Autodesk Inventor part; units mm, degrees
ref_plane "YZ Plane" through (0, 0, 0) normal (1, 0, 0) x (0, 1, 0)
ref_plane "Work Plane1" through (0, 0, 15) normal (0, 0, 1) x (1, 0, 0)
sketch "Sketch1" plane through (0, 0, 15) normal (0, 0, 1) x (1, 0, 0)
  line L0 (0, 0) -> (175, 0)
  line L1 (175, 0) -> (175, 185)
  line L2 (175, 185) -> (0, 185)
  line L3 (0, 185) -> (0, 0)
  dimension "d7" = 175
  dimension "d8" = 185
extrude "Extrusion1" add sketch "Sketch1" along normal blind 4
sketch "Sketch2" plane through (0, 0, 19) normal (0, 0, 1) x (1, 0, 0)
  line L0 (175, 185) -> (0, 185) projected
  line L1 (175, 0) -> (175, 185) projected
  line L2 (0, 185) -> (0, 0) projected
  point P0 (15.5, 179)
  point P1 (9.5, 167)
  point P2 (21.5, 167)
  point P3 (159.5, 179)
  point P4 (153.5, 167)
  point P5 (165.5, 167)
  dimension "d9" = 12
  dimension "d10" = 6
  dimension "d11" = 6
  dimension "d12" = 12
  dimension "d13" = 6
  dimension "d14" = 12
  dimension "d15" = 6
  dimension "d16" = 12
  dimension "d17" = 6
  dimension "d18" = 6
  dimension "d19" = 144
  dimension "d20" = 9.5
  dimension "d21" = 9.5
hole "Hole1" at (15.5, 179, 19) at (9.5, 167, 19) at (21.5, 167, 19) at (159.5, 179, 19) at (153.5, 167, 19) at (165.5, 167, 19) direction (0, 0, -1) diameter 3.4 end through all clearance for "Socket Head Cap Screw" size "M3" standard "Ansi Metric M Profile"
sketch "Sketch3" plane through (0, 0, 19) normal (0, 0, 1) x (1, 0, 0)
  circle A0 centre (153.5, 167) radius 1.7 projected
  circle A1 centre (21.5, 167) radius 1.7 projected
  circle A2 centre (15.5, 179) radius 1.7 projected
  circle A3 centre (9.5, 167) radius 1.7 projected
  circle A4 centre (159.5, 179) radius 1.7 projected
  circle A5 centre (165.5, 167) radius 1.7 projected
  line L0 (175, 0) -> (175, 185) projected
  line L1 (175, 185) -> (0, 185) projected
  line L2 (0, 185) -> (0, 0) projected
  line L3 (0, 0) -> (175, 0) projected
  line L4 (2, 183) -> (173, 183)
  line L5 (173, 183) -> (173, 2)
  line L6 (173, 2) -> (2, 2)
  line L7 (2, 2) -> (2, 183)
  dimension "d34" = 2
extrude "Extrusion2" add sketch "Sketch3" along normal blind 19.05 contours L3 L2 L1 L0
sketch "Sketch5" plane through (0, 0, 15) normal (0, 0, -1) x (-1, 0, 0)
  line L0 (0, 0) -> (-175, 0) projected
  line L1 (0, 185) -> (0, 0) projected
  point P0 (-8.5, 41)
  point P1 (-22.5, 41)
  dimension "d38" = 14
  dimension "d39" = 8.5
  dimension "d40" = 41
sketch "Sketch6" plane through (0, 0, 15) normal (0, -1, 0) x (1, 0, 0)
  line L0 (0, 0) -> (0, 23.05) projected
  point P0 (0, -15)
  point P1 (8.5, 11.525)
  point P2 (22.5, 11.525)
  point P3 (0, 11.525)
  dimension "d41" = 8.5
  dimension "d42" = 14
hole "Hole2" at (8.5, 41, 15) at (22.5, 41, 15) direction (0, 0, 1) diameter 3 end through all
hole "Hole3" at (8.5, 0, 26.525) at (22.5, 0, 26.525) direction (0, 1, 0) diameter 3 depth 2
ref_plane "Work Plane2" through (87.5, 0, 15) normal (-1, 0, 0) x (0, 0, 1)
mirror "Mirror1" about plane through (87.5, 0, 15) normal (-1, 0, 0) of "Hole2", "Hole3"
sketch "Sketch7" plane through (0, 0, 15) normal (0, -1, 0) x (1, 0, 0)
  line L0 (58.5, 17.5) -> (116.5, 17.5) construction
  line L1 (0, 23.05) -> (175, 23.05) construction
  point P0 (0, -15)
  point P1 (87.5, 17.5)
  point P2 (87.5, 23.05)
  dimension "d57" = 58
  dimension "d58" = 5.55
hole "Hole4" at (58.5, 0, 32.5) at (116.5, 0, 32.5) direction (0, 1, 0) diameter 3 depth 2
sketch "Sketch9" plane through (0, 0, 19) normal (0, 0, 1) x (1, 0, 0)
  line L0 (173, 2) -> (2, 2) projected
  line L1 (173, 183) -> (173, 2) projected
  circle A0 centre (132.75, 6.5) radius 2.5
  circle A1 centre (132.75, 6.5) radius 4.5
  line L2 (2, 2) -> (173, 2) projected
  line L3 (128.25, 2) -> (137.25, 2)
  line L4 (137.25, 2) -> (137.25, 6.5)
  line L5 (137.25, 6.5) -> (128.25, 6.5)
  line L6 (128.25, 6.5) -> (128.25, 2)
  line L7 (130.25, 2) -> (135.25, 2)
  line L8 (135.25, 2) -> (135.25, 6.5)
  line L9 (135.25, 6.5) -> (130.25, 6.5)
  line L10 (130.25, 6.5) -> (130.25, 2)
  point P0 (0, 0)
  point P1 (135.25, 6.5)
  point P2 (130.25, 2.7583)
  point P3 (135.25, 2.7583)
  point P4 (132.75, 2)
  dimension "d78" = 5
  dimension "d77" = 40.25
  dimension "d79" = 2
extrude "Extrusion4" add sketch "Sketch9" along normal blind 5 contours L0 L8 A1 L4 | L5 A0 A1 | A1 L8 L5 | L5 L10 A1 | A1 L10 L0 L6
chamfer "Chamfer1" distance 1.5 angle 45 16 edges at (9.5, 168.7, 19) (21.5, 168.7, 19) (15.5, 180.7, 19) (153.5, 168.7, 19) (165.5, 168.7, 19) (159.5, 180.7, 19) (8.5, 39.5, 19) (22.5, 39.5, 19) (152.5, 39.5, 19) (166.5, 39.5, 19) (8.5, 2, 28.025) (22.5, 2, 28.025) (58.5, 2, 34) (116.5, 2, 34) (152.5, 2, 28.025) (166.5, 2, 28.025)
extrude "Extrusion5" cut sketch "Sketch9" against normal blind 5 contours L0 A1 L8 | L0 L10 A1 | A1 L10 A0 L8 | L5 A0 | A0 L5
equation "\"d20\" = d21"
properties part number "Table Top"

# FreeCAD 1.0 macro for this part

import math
import FreeCAD as App
import Part
import Sketcher

V = App.Vector
Q = App.Units.Quantity


def edges_at(feature, points):
    """Names of the edges that pass closest to the given points."""
    edges = feature.Shape.Edges
    near = lambda p: min(range(len(edges)), key=lambda i: edges[i].distToShape(Part.Vertex(*p))[0])
    return sorted({f"Edge{near(p) + 1}" for p in points})

doc = App.newDocument("Part")
body = doc.addObject("PartDesign::Body", "Body")

sketch1 = doc.addObject("Sketcher::SketchObject", "Sketch")
body.addObject(sketch1)
sketch1.AttachmentSupport = (doc.XY_Plane, [""])
sketch1.MapMode = "FlatFace"
sketch1.AttachmentOffset = App.Placement(V(0, 0, 15), App.Rotation())
sketch1.addGeometry(Part.LineSegment(V(0, 185, 0), V(0, 0, 0)), False)
sketch1.addGeometry(Part.LineSegment(V(0, 0, 0), V(175, 0, 0)), False)
sketch1.addGeometry(Part.LineSegment(V(175, 0, 0), V(175, 185, 0)), False)
sketch1.addGeometry(Part.LineSegment(V(175, 185, 0), V(0, 185, 0)), False)
sketch1.addConstraint(Sketcher.Constraint("Coincident", 0, 2, 1, 1))
sketch1.addConstraint(Sketcher.Constraint("Coincident", 1, 2, 2, 1))
sketch1.addConstraint(Sketcher.Constraint("Coincident", 2, 2, 3, 1))
sketch1.addConstraint(Sketcher.Constraint("Coincident", 3, 2, 0, 1))
sketch1.addConstraint(Sketcher.Constraint("Vertical", 0))
sketch1.addConstraint(Sketcher.Constraint("Horizontal", 1))
sketch1.addConstraint(Sketcher.Constraint("Vertical", 2))
sketch1.addConstraint(Sketcher.Constraint("Horizontal", 3))
sketch1.addConstraint(Sketcher.Constraint("Coincident", 0, 2, -1, 1))
sketch1.addConstraint(Sketcher.Constraint("DistanceX", 1, 1, 1, 2, Q("175 mm")))
sketch1.addConstraint(Sketcher.Constraint("DistanceY", 0, 2, 0, 1, Q("185 mm")))
pad1 = doc.addObject("PartDesign::Pad", "Pad")
body.addObject(pad1)
pad1.Profile = sketch1
pad1.Length = 4

sketch2 = doc.addObject("Sketcher::SketchObject", "Sketch001")
body.addObject(sketch2)
sketch2.AttachmentSupport = (doc.XY_Plane, [""])
sketch2.MapMode = "FlatFace"
sketch2.AttachmentOffset = App.Placement(V(0, 0, 19), App.Rotation())
sketch2.addGeometry(Part.Circle(V(15.5, 179, 0), V(0, 0, 1), 1.7), False)
sketch2.addGeometry(Part.Circle(V(9.5, 167, 0), V(0, 0, 1), 1.7), False)
sketch2.addGeometry(Part.Circle(V(21.5, 167, 0), V(0, 0, 1), 1.7), False)
sketch2.addGeometry(Part.Circle(V(159.5, 179, 0), V(0, 0, 1), 1.7), False)
sketch2.addGeometry(Part.Circle(V(153.5, 167, 0), V(0, 0, 1), 1.7), False)
sketch2.addGeometry(Part.Circle(V(165.5, 167, 0), V(0, 0, 1), 1.7), False)
sketch2.addConstraint(Sketcher.Constraint("Equal", 0, 1))
sketch2.addConstraint(Sketcher.Constraint("Equal", 1, 2))
sketch2.addConstraint(Sketcher.Constraint("Equal", 2, 3))
sketch2.addConstraint(Sketcher.Constraint("Equal", 3, 4))
sketch2.addConstraint(Sketcher.Constraint("Equal", 4, 5))
sketch2.addConstraint(Sketcher.Constraint("Horizontal", 1, 3, 2, 3))
sketch2.addConstraint(Sketcher.Constraint("Horizontal", 0, 3, 3, 3))
sketch2.addConstraint(Sketcher.Constraint("Horizontal", 2, 3, 4, 3))
sketch2.addConstraint(Sketcher.Constraint("Horizontal", 4, 3, 5, 3))
sketch2.addConstraint(Sketcher.Constraint("Diameter", 0, Q("3.4 mm")))
sketch2.addConstraint(Sketcher.Constraint("DistanceY", -1, 1, 0, 3, Q("179 mm")))
sketch2.addConstraint(Sketcher.Constraint("DistanceY", -1, 1, 1, 3, Q("167 mm")))
sketch2.addConstraint(Sketcher.Constraint("DistanceX", 1, 3, 0, 3, Q("6 mm")))
sketch2.addConstraint(Sketcher.Constraint("DistanceX", 1, 3, 2, 3, Q("12 mm")))
sketch2.addConstraint(Sketcher.Constraint("DistanceX", 2, 3, 3, 3, Q("138 mm")))
sketch2.addConstraint(Sketcher.Constraint("DistanceX", 4, 3, 3, 3, Q("6 mm")))
sketch2.addConstraint(Sketcher.Constraint("DistanceX", 4, 3, 5, 3, Q("12 mm")))
sketch2.addConstraint(Sketcher.Constraint("DistanceX", -1, 1, 0, 3, Q("15.5 mm")))
doc.recompute()
hole = doc.addObject("PartDesign::Hole", "Hole")
body.addObject(hole)
hole.Profile = sketch2
hole.ThreadType = "None"
hole.Diameter = 3.4
hole.DepthType = "ThroughAll"

sketch3 = doc.addObject("Sketcher::SketchObject", "Sketch002")
body.addObject(sketch3)
sketch3.AttachmentSupport = (doc.XY_Plane, [""])
sketch3.MapMode = "FlatFace"
sketch3.AttachmentOffset = App.Placement(V(0, 0, 19), App.Rotation())
sketch3.addGeometry(Part.LineSegment(V(0, 0, 0), V(175, 0, 0)), False)
sketch3.addGeometry(Part.LineSegment(V(175, 0, 0), V(175, 185, 0)), False)
sketch3.addGeometry(Part.LineSegment(V(175, 185, 0), V(0, 185, 0)), False)
sketch3.addGeometry(Part.LineSegment(V(0, 185, 0), V(0, 0, 0)), False)
sketch3.addGeometry(Part.LineSegment(V(2, 2, 0), V(2, 183, 0)), False)
sketch3.addGeometry(Part.LineSegment(V(2, 183, 0), V(173, 183, 0)), False)
sketch3.addGeometry(Part.LineSegment(V(173, 183, 0), V(173, 2, 0)), False)
sketch3.addGeometry(Part.LineSegment(V(173, 2, 0), V(2, 2, 0)), False)
sketch3.addConstraint(Sketcher.Constraint("Coincident", 0, 2, 1, 1))
sketch3.addConstraint(Sketcher.Constraint("Coincident", 1, 2, 2, 1))
sketch3.addConstraint(Sketcher.Constraint("Coincident", 2, 2, 3, 1))
sketch3.addConstraint(Sketcher.Constraint("Coincident", 3, 2, 0, 1))
sketch3.addConstraint(Sketcher.Constraint("Coincident", 4, 2, 5, 1))
sketch3.addConstraint(Sketcher.Constraint("Coincident", 5, 2, 6, 1))
sketch3.addConstraint(Sketcher.Constraint("Coincident", 6, 2, 7, 1))
sketch3.addConstraint(Sketcher.Constraint("Coincident", 7, 2, 4, 1))
sketch3.addConstraint(Sketcher.Constraint("Horizontal", 0))
sketch3.addConstraint(Sketcher.Constraint("Vertical", 1))
sketch3.addConstraint(Sketcher.Constraint("Horizontal", 2))
sketch3.addConstraint(Sketcher.Constraint("Vertical", 3))
sketch3.addConstraint(Sketcher.Constraint("Vertical", 4))
sketch3.addConstraint(Sketcher.Constraint("Horizontal", 5))
sketch3.addConstraint(Sketcher.Constraint("Vertical", 6))
sketch3.addConstraint(Sketcher.Constraint("Horizontal", 7))
sketch3.addConstraint(Sketcher.Constraint("Coincident", 3, 2, -1, 1))
sketch3.addConstraint(Sketcher.Constraint("DistanceX", -1, 1, 4, 2, Q("2 mm")))
sketch3.addConstraint(Sketcher.Constraint("DistanceY", -1, 1, 6, 2, Q("2 mm")))
sketch3.addConstraint(Sketcher.Constraint("DistanceY", 4, 2, 2, 2, Q("2 mm")))
sketch3.addConstraint(Sketcher.Constraint("DistanceX", 5, 2, 1, 2, Q("2 mm")))
sketch3.addConstraint(Sketcher.Constraint("DistanceX", 0, 1, 0, 2, Q("175 mm")))
sketch3.addConstraint(Sketcher.Constraint("DistanceY", 1, 1, 1, 2, Q("185 mm")))
pad2 = doc.addObject("PartDesign::Pad", "Pad001")
body.addObject(pad2)
pad2.Profile = sketch3
pad2.Length = 19.05

sketch4 = doc.addObject("Sketcher::SketchObject", "Sketch003")
body.addObject(sketch4)
sketch4.AttachmentSupport = (doc.XY_Plane, [""])
sketch4.MapMode = "FlatFace"
sketch4.AttachmentOffset = App.Placement(V(0, 0, 15), App.Rotation())
sketch4.addGeometry(Part.Circle(V(8.5, 41, 0), V(0, 0, 1), 1.5), False)
sketch4.addGeometry(Part.Circle(V(22.5, 41, 0), V(0, 0, 1), 1.5), False)
sketch4.addConstraint(Sketcher.Constraint("Equal", 0, 1))
sketch4.addConstraint(Sketcher.Constraint("Horizontal", 0, 3, 1, 3))
sketch4.addConstraint(Sketcher.Constraint("Diameter", 0, Q("3 mm")))
sketch4.addConstraint(Sketcher.Constraint("DistanceY", -1, 1, 0, 3, Q("41 mm")))
sketch4.addConstraint(Sketcher.Constraint("DistanceX", 0, 3, 1, 3, Q("14 mm")))
sketch4.addConstraint(Sketcher.Constraint("DistanceX", -1, 1, 0, 3, Q("8.5 mm")))
doc.recompute()
hole2 = doc.addObject("PartDesign::Hole", "Hole001")
body.addObject(hole2)
hole2.Profile = sketch4
hole2.ThreadType = "None"
hole2.Diameter = 3
hole2.DepthType = "ThroughAll"
hole2.Reversed = True

sketch5 = doc.addObject("Sketcher::SketchObject", "Sketch004")
body.addObject(sketch5)
sketch5.AttachmentSupport = (doc.XZ_Plane, [""])
sketch5.MapMode = "FlatFace"
sketch5.addGeometry(Part.Circle(V(8.5, 26.5, 0), V(0, 0, 1), 1.5), False)
sketch5.addGeometry(Part.Circle(V(22.5, 26.5, 0), V(0, 0, 1), 1.5), False)
sketch5.addConstraint(Sketcher.Constraint("Equal", 0, 1))
sketch5.addConstraint(Sketcher.Constraint("Horizontal", 0, 3, 1, 3))
sketch5.addConstraint(Sketcher.Constraint("Diameter", 0, Q("3 mm")))
sketch5.addConstraint(Sketcher.Constraint("DistanceX", 0, 3, 1, 3, Q("14 mm")))
sketch5.addConstraint(Sketcher.Constraint("DistanceX", -1, 1, 0, 3, Q("8.5 mm")))
sketch5.addConstraint(Sketcher.Constraint("DistanceY", -1, 1, 0, 3, Q("26.525 mm")))
doc.recompute()
hole3 = doc.addObject("PartDesign::Hole", "Hole002")
body.addObject(hole3)
hole3.Profile = sketch5
hole3.ThreadType = "None"
hole3.Diameter = 3
hole3.DepthType = "Dimension"
hole3.Depth = 2
hole3.DrillPoint = "Flat"
doc.recompute()

datumplane = doc.addObject("PartDesign::Plane", "DatumPlane")
body.addObject(datumplane)
datumplane.AttachmentSupport = (doc.YZ_Plane, [""])
datumplane.MapMode = "FlatFace"
datumplane.AttachmentOffset = App.Placement(V(0, 0, 87.5), App.Rotation())
mirrored = doc.addObject("PartDesign::Mirrored", "Mirrored")
body.addObject(mirrored)
mirrored.Originals = [hole2, hole3]
mirrored.MirrorPlane = (datumplane, [""])
body.Tip = mirrored

sketch6 = doc.addObject("Sketcher::SketchObject", "Sketch005")
body.addObject(sketch6)
sketch6.AttachmentSupport = (doc.XZ_Plane, [""])
sketch6.MapMode = "FlatFace"
sketch6.addGeometry(Part.Circle(V(58.5, 32.5, 0), V(0, 0, 1), 1.5), False)
sketch6.addGeometry(Part.Circle(V(116.5, 32.5, 0), V(0, 0, 1), 1.5), False)
sketch6.addConstraint(Sketcher.Constraint("Equal", 0, 1))
sketch6.addConstraint(Sketcher.Constraint("Horizontal", 0, 3, 1, 3))
sketch6.addConstraint(Sketcher.Constraint("Diameter", 0, Q("3 mm")))
sketch6.addConstraint(Sketcher.Constraint("DistanceX", 0, 3, 1, 3, Q("58 mm")))
sketch6.addConstraint(Sketcher.Constraint("DistanceX", -1, 1, 0, 3, Q("58.5 mm")))
sketch6.addConstraint(Sketcher.Constraint("DistanceY", -1, 1, 0, 3, Q("32.5 mm")))
doc.recompute()
hole4 = doc.addObject("PartDesign::Hole", "Hole003")
body.addObject(hole4)
hole4.Profile = sketch6
hole4.ThreadType = "None"
hole4.Diameter = 3
hole4.DepthType = "Dimension"
hole4.Depth = 2
hole4.DrillPoint = "Flat"

sketch7 = doc.addObject("Sketcher::SketchObject", "Sketch006")
body.addObject(sketch7)
sketch7.AttachmentSupport = (doc.XY_Plane, [""])
sketch7.MapMode = "FlatFace"
sketch7.AttachmentOffset = App.Placement(V(0, 0, 19), App.Rotation())
sketch7.addGeometry(Part.LineSegment(V(135.2, 2, 0), V(137.2, 2, 0)), False)
sketch7.addGeometry(Part.LineSegment(V(137.2, 2, 0), V(137.2, 6.5, 0)), False)
sketch7.addGeometry(Part.ArcOfCircle(Part.Circle(V(132.8, 6.5, 0), V(0, 0, 1), 4.5), math.radians(0), math.radians(180)), False)
sketch7.addGeometry(Part.LineSegment(V(128.2, 6.5, 0), V(128.2, 2, 0)), False)
sketch7.addGeometry(Part.LineSegment(V(128.2, 2, 0), V(130.2, 2, 0)), False)
sketch7.addGeometry(Part.LineSegment(V(130.2, 2, 0), V(130.2, 6.5, 0)), False)
sketch7.addGeometry(Part.ArcOfCircle(Part.Circle(V(132.8, 6.5, 0), V(0, 0, 1), 2.5), math.radians(0), math.radians(180)), False)
sketch7.addGeometry(Part.LineSegment(V(135.2, 6.5, 0), V(135.2, 2, 0)), False)
sketch7.addConstraint(Sketcher.Constraint("Coincident", 0, 2, 1, 1))
sketch7.addConstraint(Sketcher.Constraint("Tangent", 1, 2, 2, 1))
sketch7.addConstraint(Sketcher.Constraint("Tangent", 2, 2, 3, 1))
sketch7.addConstraint(Sketcher.Constraint("Coincident", 3, 2, 4, 1))
sketch7.addConstraint(Sketcher.Constraint("Coincident", 4, 2, 5, 1))
sketch7.addConstraint(Sketcher.Constraint("Tangent", 5, 2, 6, 2))
sketch7.addConstraint(Sketcher.Constraint("Tangent", 6, 1, 7, 1))
sketch7.addConstraint(Sketcher.Constraint("Coincident", 7, 2, 0, 1))
sketch7.addConstraint(Sketcher.Constraint("Horizontal", 0))
sketch7.addConstraint(Sketcher.Constraint("Vertical", 1))
sketch7.addConstraint(Sketcher.Constraint("Vertical", 3))
sketch7.addConstraint(Sketcher.Constraint("Horizontal", 4))
sketch7.addConstraint(Sketcher.Constraint("Vertical", 5))
sketch7.addConstraint(Sketcher.Constraint("Vertical", 7))
sketch7.addConstraint(Sketcher.Constraint("Coincident", 6, 3, 2, 3))
sketch7.addConstraint(Sketcher.Constraint("Horizontal", 0, 2, 3, 2))
sketch7.addConstraint(Sketcher.Constraint("Radius", 6, Q("2.5 mm")))
sketch7.addConstraint(Sketcher.Constraint("DistanceX", 0, 1, 0, 2, Q("2 mm")))
sketch7.addConstraint(Sketcher.Constraint("DistanceY", -1, 1, 0, 2, Q("2 mm")))
sketch7.addConstraint(Sketcher.Constraint("DistanceY", 1, 1, 1, 2, Q("4.5 mm")))
sketch7.addConstraint(Sketcher.Constraint("DistanceX", -1, 1, 2, 3, Q("132.75 mm")))
pad3 = doc.addObject("PartDesign::Pad", "Pad002")
body.addObject(pad3)
pad3.Profile = sketch7
pad3.Length = 5
doc.recompute()

chamfer = doc.addObject("PartDesign::Chamfer", "Chamfer")
body.addObject(chamfer)
chamfer.Base = (pad3, edges_at(pad3, [
    (9.5, 168.7, 19),
    (21.5, 168.7, 19),
    (15.5, 180.7, 19),
    (153.5, 168.7, 19),
    (165.5, 168.7, 19),
    (159.5, 180.7, 19),
    (8.5, 39.5, 19),
    (22.5, 39.5, 19),
    (152.5, 39.5, 19),
    (166.5, 39.5, 19),
    (8.5, 2, 28.025),
    (22.5, 2, 28.025),
    (58.5, 2, 34),
    (116.5, 2, 34),
    (152.5, 2, 28.025),
    (166.5, 2, 28.025),
]))
chamfer.Size = 1.5

sketch8 = doc.addObject("Sketcher::SketchObject", "Sketch007")
body.addObject(sketch8)
sketch8.AttachmentSupport = (doc.XY_Plane, [""])
sketch8.MapMode = "FlatFace"
sketch8.AttachmentOffset = App.Placement(V(0, 0, 19), App.Rotation())
sketch8.addGeometry(Part.LineSegment(V(135.2, 2, 0), V(135.2, 6.5, 0)), False)
sketch8.addGeometry(Part.ArcOfCircle(Part.Circle(V(132.8, 6.5, 0), V(0, 0, 1), 2.5), math.radians(0), math.radians(180)), False)
sketch8.addGeometry(Part.LineSegment(V(130.2, 6.5, 0), V(130.2, 2, 0)), False)
sketch8.addGeometry(Part.LineSegment(V(130.2, 2, 0), V(135.2, 2, 0)), False)
sketch8.addConstraint(Sketcher.Constraint("Tangent", 0, 2, 1, 1))
sketch8.addConstraint(Sketcher.Constraint("Tangent", 1, 2, 2, 1))
sketch8.addConstraint(Sketcher.Constraint("Coincident", 2, 2, 3, 1))
sketch8.addConstraint(Sketcher.Constraint("Coincident", 3, 2, 0, 1))
sketch8.addConstraint(Sketcher.Constraint("Vertical", 0))
sketch8.addConstraint(Sketcher.Constraint("Vertical", 2))
sketch8.addConstraint(Sketcher.Constraint("Horizontal", 3))
sketch8.addConstraint(Sketcher.Constraint("Radius", 1, Q("2.5 mm")))
sketch8.addConstraint(Sketcher.Constraint("DistanceY", -1, 1, 2, 2, Q("2 mm")))
sketch8.addConstraint(Sketcher.Constraint("DistanceY", 0, 1, 0, 2, Q("4.5 mm")))
sketch8.addConstraint(Sketcher.Constraint("DistanceX", -1, 1, 1, 3, Q("132.75 mm")))
pocket1 = doc.addObject("PartDesign::Pocket", "Pocket")
body.addObject(pocket1)
pocket1.Profile = sketch8
pocket1.Length = 5

doc.recompute()
